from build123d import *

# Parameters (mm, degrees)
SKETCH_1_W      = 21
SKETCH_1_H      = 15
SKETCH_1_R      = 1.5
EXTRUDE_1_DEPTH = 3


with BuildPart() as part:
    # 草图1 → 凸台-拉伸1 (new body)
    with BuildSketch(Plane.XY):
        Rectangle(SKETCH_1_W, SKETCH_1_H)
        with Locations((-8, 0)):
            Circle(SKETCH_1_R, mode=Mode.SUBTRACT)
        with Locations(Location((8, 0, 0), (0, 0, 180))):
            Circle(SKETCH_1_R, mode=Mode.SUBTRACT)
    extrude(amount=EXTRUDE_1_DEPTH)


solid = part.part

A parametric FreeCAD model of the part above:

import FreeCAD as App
import Part
import Sketcher
from FreeCAD import Vector
Q = App.Units.Quantity

doc = App.newDocument("Part")
body = doc.addObject("PartDesign::Body", "Body")

# Sketch on XY plane
sketch1 = doc.addObject("Sketcher::SketchObject", "Sketch")
body.addObject(sketch1)
sketch1.AttachmentSupport = (doc.XY_Plane, [""])
sketch1.MapMode = "FlatFace"
sketch1.addGeometry([
    Part.LineSegment(Vector(-10.5, 7.5, 0), Vector(-10.5, -7.5, 0)),  # 0
    Part.LineSegment(Vector(-10.5, -7.5, 0), Vector(10.5, -7.5, 0)),  # 1
    Part.LineSegment(Vector(10.5, -7.5, 0), Vector(10.5, 7.5, 0)),  # 2
    Part.LineSegment(Vector(10.5, 7.5, 0), Vector(-10.5, 7.5, 0)),  # 3
    Part.Circle(Vector(-8, 0, 0), Vector(0, 0, 1), 1.5),  # 4
    Part.Circle(Vector(8, 0, 0), Vector(0, 0, 1), 1.5),  # 5
], False)
sketch1.addConstraint([
    Sketcher.Constraint("Coincident", 0, 2, 1, 1),
    Sketcher.Constraint("Coincident", 1, 2, 2, 1),
    Sketcher.Constraint("Coincident", 2, 2, 3, 1),
    Sketcher.Constraint("Coincident", 3, 2, 0, 1),
    Sketcher.Constraint("Vertical", 0),
    Sketcher.Constraint("Horizontal", 1),
    Sketcher.Constraint("Vertical", 2),
    Sketcher.Constraint("Horizontal", 3),
    Sketcher.Constraint("Equal", 4, 5),
    Sketcher.Constraint("Symmetric", 4, 3, 5, 3, -1, 1),
    Sketcher.Constraint("Symmetric", 0, 2, 2, 2, -1, 1),
    Sketcher.Constraint("PointOnObject", 4, 3, -1),
    Sketcher.Constraint("Diameter", 4, Q("3 mm")),
    Sketcher.Constraint("DistanceX", 1, 1, 1, 2, Q("21 mm")),
    Sketcher.Constraint("DistanceY", 0, 2, 0, 1, Q("15 mm")),
    Sketcher.Constraint("DistanceX", 4, 3, -1, 1, Q("8 mm")),
])
pad1 = doc.addObject("PartDesign::Pad", "Pad")
body.addObject(pad1)
pad1.Profile = sketch1
pad1.Length = 3

doc.recompute()
